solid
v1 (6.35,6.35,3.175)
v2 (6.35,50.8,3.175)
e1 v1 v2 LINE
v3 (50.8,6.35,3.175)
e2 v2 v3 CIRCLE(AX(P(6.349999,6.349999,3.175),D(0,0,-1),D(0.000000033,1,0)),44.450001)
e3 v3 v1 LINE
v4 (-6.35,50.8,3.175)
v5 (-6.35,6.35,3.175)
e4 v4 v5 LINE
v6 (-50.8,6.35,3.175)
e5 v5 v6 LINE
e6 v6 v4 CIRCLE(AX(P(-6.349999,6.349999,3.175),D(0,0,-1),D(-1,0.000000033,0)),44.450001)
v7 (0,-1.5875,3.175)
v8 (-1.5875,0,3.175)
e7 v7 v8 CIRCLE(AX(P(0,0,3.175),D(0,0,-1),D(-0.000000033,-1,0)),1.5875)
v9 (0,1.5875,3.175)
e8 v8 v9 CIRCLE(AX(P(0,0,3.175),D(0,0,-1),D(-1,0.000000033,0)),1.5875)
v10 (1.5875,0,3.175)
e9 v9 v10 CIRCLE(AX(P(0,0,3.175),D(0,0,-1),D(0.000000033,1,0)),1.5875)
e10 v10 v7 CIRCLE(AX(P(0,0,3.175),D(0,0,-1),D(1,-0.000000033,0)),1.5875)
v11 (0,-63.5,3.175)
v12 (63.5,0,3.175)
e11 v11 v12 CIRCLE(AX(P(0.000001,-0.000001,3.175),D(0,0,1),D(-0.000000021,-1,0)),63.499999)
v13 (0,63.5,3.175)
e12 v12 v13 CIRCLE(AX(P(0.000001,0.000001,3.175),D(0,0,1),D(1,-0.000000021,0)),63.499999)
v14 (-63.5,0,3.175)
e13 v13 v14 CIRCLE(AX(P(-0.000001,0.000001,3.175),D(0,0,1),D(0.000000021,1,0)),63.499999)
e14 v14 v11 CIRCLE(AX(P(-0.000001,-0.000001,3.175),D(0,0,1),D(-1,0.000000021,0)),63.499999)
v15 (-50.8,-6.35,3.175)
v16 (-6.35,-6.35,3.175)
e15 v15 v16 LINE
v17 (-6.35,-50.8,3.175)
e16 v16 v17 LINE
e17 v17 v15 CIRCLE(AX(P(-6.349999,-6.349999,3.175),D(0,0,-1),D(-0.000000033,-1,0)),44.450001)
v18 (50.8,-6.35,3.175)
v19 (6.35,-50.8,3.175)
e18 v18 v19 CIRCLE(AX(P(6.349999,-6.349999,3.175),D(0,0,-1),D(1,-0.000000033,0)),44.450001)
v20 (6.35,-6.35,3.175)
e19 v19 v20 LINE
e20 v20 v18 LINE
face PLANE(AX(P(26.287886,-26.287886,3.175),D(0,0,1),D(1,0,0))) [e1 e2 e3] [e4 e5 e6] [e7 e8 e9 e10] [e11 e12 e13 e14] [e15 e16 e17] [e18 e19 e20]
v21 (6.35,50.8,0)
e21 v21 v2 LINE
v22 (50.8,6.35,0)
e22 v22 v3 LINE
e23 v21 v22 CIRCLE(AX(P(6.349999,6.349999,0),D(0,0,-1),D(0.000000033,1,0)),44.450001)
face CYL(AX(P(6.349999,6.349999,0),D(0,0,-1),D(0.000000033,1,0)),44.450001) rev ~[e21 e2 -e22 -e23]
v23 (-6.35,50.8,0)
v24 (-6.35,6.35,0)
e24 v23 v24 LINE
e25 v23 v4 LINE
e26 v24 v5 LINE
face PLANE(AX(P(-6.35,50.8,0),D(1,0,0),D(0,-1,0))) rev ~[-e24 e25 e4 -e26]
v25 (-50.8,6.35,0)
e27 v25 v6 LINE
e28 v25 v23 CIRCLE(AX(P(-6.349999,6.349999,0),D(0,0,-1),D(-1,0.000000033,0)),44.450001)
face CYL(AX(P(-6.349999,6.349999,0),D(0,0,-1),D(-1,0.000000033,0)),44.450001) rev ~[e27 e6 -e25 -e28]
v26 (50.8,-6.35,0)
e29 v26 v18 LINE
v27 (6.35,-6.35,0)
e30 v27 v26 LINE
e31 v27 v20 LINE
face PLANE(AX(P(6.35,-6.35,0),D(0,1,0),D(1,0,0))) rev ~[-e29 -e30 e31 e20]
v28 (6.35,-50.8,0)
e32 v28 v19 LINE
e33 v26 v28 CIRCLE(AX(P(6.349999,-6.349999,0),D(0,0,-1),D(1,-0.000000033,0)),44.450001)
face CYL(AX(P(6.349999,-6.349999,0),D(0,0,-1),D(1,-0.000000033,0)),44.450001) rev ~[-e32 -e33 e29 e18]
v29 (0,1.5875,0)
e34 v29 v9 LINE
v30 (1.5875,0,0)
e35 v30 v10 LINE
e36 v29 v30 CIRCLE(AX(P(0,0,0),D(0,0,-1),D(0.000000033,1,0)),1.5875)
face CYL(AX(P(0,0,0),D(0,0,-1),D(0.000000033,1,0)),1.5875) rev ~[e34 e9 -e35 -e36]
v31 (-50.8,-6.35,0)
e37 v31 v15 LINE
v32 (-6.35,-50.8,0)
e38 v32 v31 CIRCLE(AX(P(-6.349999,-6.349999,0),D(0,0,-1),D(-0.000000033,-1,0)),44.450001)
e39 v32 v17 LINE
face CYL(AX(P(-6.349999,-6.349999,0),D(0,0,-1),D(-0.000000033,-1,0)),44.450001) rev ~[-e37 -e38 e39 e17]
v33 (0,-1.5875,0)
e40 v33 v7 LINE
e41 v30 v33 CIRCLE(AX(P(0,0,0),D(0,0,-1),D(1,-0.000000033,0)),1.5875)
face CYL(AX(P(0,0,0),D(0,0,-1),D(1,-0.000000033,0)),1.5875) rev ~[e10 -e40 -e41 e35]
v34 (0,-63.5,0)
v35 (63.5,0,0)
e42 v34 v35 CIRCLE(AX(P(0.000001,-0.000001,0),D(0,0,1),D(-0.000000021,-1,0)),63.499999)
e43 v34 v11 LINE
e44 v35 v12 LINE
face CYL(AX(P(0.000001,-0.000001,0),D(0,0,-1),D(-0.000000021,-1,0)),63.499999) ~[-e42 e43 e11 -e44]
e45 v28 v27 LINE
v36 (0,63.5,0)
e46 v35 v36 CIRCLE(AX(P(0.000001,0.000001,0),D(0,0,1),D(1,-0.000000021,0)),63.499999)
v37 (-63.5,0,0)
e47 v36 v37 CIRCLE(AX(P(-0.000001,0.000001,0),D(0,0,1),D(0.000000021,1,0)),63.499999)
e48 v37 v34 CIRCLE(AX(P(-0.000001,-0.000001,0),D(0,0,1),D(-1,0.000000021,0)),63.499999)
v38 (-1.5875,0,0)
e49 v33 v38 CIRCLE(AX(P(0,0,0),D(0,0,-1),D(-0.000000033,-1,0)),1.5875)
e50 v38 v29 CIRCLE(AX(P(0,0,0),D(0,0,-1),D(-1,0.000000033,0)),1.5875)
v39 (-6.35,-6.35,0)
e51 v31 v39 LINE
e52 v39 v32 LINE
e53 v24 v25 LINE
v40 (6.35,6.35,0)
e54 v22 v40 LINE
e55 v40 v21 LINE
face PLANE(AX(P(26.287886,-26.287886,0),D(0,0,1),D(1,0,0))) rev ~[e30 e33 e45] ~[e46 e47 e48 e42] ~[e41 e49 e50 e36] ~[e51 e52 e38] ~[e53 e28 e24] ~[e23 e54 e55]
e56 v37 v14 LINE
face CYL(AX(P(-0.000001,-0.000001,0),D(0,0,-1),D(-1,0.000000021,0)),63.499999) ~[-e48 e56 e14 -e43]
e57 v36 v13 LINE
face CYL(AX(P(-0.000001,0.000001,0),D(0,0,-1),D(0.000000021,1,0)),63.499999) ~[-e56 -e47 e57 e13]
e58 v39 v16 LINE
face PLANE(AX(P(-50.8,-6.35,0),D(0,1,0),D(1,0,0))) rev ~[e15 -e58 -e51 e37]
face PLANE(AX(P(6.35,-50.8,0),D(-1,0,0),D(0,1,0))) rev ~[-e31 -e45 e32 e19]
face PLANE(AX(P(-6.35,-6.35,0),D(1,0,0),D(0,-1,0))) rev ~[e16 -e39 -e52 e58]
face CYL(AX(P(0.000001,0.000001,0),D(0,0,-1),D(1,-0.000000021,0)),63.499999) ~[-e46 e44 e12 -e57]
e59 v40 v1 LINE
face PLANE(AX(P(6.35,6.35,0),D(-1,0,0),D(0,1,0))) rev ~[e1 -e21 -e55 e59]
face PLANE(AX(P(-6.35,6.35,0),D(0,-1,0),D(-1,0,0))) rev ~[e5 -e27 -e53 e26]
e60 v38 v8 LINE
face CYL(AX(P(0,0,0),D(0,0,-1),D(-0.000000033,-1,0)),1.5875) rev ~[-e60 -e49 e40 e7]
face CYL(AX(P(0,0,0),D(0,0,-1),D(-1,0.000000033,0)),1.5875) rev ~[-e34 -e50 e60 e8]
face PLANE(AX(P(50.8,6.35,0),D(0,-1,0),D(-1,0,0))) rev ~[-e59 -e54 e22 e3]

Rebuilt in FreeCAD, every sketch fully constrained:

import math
import FreeCAD as App
import Part
import Sketcher
Q = App.Units.Quantity

doc = App.newDocument("Part")
body = doc.addObject("PartDesign::Body", "Body")

sketch1 = body.newObject("Sketcher::SketchObject", "Sketch")
sketch1.AttachmentSupport = (doc.getObject("XY_Plane"), [""])
sketch1.MapMode = "FlatFace"
sketch1.addGeometry([
    Part.ArcOfCircle(Part.Circle(App.Vector(0.000001, -0.000001, 0), App.Vector(0, 0, 1), 63.499999), math.radians(-90.000001), math.radians(0.000001)),
    Part.ArcOfCircle(Part.Circle(App.Vector(0.000001, 0.000001, 0), App.Vector(0, 0, 1), 63.499999), math.radians(-0.000001), math.radians(90.000001)),
    Part.ArcOfCircle(Part.Circle(App.Vector(-0.000001, 0.000001, 0), App.Vector(0, 0, 1), 63.499999), math.radians(89.999999), math.radians(180.000001)),
    Part.ArcOfCircle(Part.Circle(App.Vector(-0.000001, -0.000001, 0), App.Vector(0, 0, 1), 63.499999), math.radians(179.999999), math.radians(270.000001)),
    Part.LineSegment(App.Vector(-50.8, -6.35, 0), App.Vector(-6.35, -6.35, 0)),
    Part.LineSegment(App.Vector(-6.35, -6.35, 0), App.Vector(-6.35, -50.8, 0)),
    Part.ArcOfCircle(Part.Circle(App.Vector(-6.349999, -6.349999, 0), App.Vector(0, 0, 1), 44.450001), math.radians(-179.999998), math.radians(-90.000002)),
    Part.LineSegment(App.Vector(6.35, -50.8, 0), App.Vector(6.35, -6.35, 0)),
    Part.LineSegment(App.Vector(6.35, -6.35, 0), App.Vector(50.8, -6.35, 0)),
    Part.ArcOfCircle(Part.Circle(App.Vector(6.349999, -6.349999, 0), App.Vector(0, 0, 1), 44.450001), math.radians(-89.999998), math.radians(-0.000002)),
    Part.LineSegment(App.Vector(-6.35, 50.8, 0), App.Vector(-6.35, 6.35, 0)),
    Part.LineSegment(App.Vector(-6.35, 6.35, 0), App.Vector(-50.8, 6.35, 0)),
    Part.ArcOfCircle(Part.Circle(App.Vector(-6.349999, 6.349999, 0), App.Vector(0, 0, 1), 44.450001), math.radians(90.000002), math.radians(179.999998)),
    Part.ArcOfCircle(Part.Circle(App.Vector(0, 0, 0), App.Vector(0, 0, 1), 1.5875), math.radians(-89.999998), math.radians(-0.000002)),
    Part.ArcOfCircle(Part.Circle(App.Vector(0, 0, 0), App.Vector(0, 0, 1), 1.5875), math.radians(-179.999998), math.radians(-90.000002)),
    Part.ArcOfCircle(Part.Circle(App.Vector(0, 0, 0), App.Vector(0, 0, 1), 1.5875), math.radians(90.000002), math.radians(179.999998)),
    Part.ArcOfCircle(Part.Circle(App.Vector(0, 0, 0), App.Vector(0, 0, 1), 1.5875), math.radians(0.000002), math.radians(89.999998)),
    Part.LineSegment(App.Vector(50.8, 6.35, 0), App.Vector(6.35, 6.35, 0)),
    Part.LineSegment(App.Vector(6.35, 6.35, 0), App.Vector(6.35, 50.8, 0)),
    Part.ArcOfCircle(Part.Circle(App.Vector(6.349999, 6.349999, 0), App.Vector(0, 0, 1), 44.450001), math.radians(0.000002), math.radians(89.999998)),
], False)
sketch1.addConstraint([
    Sketcher.Constraint("Tangent", 0, 2, 1, 1),
    Sketcher.Constraint("Tangent", 1, 2, 2, 1),
    Sketcher.Constraint("Tangent", 2, 2, 3, 1),
    Sketcher.Constraint("Tangent", 3, 2, 0, 1),
    Sketcher.Constraint("Coincident", 4, 2, 5, 1),
    Sketcher.Constraint("Coincident", 5, 2, 6, 2),
    Sketcher.Constraint("Coincident", 6, 1, 4, 1),
    Sketcher.Constraint("Coincident", 7, 2, 8, 1),
    Sketcher.Constraint("Coincident", 8, 2, 9, 2),
    Sketcher.Constraint("Coincident", 9, 1, 7, 1),
    Sketcher.Constraint("Coincident", 10, 2, 11, 1),
    Sketcher.Constraint("Coincident", 11, 2, 12, 2),
    Sketcher.Constraint("Coincident", 12, 1, 10, 1),
    Sketcher.Constraint("Tangent", 13, 1, 14, 2),
    Sketcher.Constraint("Tangent", 14, 1, 15, 2),
    Sketcher.Constraint("Tangent", 15, 1, 16, 2),
    Sketcher.Constraint("Tangent", 16, 1, 13, 2),
    Sketcher.Constraint("Coincident", 17, 2, 18, 1),
    Sketcher.Constraint("Coincident", 18, 2, 19, 2),
    Sketcher.Constraint("Coincident", 19, 1, 17, 1),
    Sketcher.Constraint("Horizontal", 4),
    Sketcher.Constraint("Vertical", 5),
    Sketcher.Constraint("Vertical", 7),
    Sketcher.Constraint("Horizontal", 8),
    Sketcher.Constraint("Vertical", 10),
    Sketcher.Constraint("Horizontal", 11),
    Sketcher.Constraint("Horizontal", 17),
    Sketcher.Constraint("Vertical", 18),
    Sketcher.Constraint("Coincident", 0, 3, -1, 1),
    Sketcher.Constraint("Coincident", 13, 3, -1, 1),
    Sketcher.Constraint("Coincident", 4, 2, 6, 3),
    Sketcher.Constraint("Coincident", 7, 2, 9, 3),
    Sketcher.Constraint("Coincident", 10, 2, 12, 3),
    Sketcher.Constraint("Coincident", 17, 2, 19, 3),
    Sketcher.Constraint("Equal", 0, 1),
    Sketcher.Constraint("Equal", 6, 9),
    Sketcher.Constraint("Equal", 9, 12),
    Sketcher.Constraint("Equal", 13, 14),
    Sketcher.Constraint("Equal", 12, 19),
    Sketcher.Constraint("Symmetric", 9, 3, 12, 3, -1, 1),
    Sketcher.Constraint("Symmetric", 6, 3, 19, 3, -1, 1),
    Sketcher.Constraint("Symmetric", 6, 3, 9, 3, -2),
    Sketcher.Constraint("PointOnObject", 0, 2, -1),
    Sketcher.Constraint("PointOnObject", 1, 2, -2),
    Sketcher.Constraint("PointOnObject", 2, 2, -1),
    Sketcher.Constraint("PointOnObject", 3, 2, -2),
    Sketcher.Constraint("PointOnObject", 13, 1, -2),
    Sketcher.Constraint("PointOnObject", 14, 1, -1),
    Sketcher.Constraint("PointOnObject", 15, 1, -2),
    Sketcher.Constraint("PointOnObject", 16, 1, -1),
    Sketcher.Constraint("Radius", 0, Q("2.4999999 in")),
    Sketcher.Constraint("Radius", 6, Q("1.7500001 in")),
    Sketcher.Constraint("DistanceY", 5, 2, -1, 1, Q("2 in")),
    Sketcher.Constraint("DistanceX", 6, 1, -1, 1, Q("2 in")),
    Sketcher.Constraint("Radius", 13, Q("0.0625 in")),
])
pad1 = body.newObject("PartDesign::Pad", "Pad")
pad1.Profile = sketch1
pad1.Length = Q("0.125 in")

doc.recompute()
